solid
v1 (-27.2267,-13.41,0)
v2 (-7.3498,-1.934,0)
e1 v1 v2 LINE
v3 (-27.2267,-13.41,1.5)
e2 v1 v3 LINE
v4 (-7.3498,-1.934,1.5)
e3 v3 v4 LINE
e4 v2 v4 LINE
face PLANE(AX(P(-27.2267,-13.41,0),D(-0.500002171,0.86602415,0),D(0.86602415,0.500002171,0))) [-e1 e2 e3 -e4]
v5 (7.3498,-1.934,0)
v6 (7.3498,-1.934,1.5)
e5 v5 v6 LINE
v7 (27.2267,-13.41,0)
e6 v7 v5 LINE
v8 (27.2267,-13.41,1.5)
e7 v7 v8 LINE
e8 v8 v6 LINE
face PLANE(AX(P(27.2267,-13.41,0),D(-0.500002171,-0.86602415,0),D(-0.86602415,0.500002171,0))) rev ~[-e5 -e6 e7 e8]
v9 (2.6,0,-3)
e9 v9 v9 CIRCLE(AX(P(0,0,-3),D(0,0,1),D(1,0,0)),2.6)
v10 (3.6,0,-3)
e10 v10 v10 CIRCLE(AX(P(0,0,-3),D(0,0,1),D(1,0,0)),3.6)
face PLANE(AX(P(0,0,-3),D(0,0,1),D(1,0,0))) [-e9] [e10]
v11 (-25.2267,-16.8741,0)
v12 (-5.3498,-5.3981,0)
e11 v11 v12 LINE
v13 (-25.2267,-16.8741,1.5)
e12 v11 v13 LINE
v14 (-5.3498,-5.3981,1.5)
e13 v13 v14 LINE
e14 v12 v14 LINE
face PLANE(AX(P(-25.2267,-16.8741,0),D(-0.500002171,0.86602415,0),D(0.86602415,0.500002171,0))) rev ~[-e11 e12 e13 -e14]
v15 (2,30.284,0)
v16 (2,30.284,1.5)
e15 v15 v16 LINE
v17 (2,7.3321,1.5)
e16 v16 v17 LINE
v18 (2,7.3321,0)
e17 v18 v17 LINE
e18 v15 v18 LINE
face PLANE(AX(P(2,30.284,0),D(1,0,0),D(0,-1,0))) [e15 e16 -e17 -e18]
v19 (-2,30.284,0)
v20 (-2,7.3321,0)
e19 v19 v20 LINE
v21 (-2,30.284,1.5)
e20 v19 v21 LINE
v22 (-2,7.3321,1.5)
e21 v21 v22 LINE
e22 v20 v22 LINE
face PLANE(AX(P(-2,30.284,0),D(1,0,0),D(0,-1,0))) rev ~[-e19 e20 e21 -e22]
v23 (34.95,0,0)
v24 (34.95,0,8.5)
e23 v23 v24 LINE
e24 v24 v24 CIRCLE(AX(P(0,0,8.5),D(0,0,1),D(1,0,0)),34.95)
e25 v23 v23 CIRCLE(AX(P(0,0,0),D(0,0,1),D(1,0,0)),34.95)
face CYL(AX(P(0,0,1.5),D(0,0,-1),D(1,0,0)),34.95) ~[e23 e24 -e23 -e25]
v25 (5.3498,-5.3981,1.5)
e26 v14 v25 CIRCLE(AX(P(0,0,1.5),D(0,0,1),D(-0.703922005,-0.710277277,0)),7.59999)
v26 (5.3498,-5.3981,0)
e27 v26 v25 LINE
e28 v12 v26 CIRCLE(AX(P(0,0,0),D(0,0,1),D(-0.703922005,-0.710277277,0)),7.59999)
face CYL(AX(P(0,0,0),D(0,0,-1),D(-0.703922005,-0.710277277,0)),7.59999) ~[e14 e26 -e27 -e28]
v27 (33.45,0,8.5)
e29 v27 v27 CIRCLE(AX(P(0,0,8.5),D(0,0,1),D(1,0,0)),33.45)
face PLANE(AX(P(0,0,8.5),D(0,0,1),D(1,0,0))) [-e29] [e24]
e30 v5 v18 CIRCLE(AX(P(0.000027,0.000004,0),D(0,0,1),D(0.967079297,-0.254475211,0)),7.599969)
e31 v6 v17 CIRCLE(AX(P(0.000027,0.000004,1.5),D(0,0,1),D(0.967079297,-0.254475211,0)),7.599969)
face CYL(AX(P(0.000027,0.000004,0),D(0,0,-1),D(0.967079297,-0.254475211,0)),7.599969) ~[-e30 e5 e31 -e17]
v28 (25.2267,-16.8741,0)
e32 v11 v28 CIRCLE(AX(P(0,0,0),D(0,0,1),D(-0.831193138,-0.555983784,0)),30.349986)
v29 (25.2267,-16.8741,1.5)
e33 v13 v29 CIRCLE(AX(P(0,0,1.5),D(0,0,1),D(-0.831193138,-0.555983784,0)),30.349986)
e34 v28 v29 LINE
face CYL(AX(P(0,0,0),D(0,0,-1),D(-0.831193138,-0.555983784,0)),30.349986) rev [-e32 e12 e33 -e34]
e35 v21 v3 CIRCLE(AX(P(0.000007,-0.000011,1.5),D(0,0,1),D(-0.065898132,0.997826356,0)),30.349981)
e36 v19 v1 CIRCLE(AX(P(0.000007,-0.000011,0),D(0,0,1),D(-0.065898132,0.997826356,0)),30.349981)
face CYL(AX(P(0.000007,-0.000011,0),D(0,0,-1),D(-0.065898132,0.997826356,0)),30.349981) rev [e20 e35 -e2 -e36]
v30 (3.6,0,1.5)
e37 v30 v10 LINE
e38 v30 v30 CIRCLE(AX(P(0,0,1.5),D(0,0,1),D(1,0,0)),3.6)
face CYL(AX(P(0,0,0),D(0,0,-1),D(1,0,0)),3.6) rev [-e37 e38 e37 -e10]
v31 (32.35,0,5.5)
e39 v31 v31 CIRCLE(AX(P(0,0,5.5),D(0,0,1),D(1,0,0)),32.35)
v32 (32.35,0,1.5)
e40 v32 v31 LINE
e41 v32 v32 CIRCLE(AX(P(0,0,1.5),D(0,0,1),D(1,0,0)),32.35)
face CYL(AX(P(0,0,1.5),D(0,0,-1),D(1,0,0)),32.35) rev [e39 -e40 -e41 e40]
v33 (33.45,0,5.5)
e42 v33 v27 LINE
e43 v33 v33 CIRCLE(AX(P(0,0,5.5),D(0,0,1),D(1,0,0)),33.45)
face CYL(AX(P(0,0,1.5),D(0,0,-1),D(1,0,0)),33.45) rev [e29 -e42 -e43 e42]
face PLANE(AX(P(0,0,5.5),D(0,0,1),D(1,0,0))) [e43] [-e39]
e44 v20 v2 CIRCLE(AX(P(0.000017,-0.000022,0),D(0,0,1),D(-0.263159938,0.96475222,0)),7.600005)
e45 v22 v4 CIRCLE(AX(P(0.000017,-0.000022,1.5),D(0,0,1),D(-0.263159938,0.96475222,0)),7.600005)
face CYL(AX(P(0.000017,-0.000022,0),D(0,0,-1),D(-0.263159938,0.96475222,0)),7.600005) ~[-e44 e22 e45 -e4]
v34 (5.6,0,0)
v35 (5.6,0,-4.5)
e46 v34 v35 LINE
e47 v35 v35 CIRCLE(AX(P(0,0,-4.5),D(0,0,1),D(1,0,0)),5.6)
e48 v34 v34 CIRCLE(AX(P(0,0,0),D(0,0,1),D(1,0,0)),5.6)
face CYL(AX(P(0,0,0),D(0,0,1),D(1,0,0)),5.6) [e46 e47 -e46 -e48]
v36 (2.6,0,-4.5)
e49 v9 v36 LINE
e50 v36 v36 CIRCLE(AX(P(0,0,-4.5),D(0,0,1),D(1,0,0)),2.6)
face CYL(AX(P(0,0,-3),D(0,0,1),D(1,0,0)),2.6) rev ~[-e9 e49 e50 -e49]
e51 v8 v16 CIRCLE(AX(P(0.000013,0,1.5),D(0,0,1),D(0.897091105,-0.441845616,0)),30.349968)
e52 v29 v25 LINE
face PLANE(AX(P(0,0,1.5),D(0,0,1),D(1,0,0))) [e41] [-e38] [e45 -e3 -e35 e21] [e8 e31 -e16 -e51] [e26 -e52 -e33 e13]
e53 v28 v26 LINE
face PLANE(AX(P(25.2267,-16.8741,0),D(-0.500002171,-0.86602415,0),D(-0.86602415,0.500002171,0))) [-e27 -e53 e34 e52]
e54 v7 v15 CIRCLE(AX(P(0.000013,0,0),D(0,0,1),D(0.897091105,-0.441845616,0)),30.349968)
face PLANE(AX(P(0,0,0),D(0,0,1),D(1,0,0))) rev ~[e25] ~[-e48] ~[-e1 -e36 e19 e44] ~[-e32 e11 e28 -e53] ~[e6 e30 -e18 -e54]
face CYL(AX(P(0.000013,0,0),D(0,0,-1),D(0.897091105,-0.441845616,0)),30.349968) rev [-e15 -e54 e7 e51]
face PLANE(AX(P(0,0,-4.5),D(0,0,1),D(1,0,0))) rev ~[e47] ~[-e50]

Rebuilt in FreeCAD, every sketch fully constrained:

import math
import FreeCAD as App
import Part
import Sketcher
from FreeCAD import Vector
Q = App.Units.Quantity

doc = App.newDocument("Part")
params = doc.addObject("Spreadsheet::Sheet", "Params")
for row, (alias, value) in enumerate([
    ("sketch1_diameter", "7.2 mm"),
    ("sketch1_diameter2", "69.9 mm"),
    ("sketch1_radius", "7.6 mm"),
    ("sketch1_radius2", "30.35 mm"),
    ("pad1_length", "1.5 mm"),
    ("sketch2_diameter", "69.9 mm"),
    ("sketch2_diameter2", "66.9 mm"),
    ("pad2_length", "7 mm"),
    ("sketch3_diameter", "7.2 mm"),
    ("sketch3_diameter2", "11.2 mm"),
    ("pad3_length", "3 mm"),
    ("sketch4_diameter", "11.2 mm"),
    ("sketch4_diameter2", "5.2 mm"),
    ("pad4_length", "1.5 mm"),
    ("sketch5_diameter", "66.9 mm"),
    ("sketch5_diameter2", "64.7 mm"),
    ("pad5_length", "4 mm"),
], start=1):
    params.set(f"A{row}", alias)
    params.set(f"B{row}", "=" + value)
    params.setAlias(f"B{row}", alias)

body = doc.addObject("PartDesign::Body", "Body")

# Sketch on XY plane
sketch1 = doc.addObject("Sketcher::SketchObject", "Sketch")
body.addObject(sketch1)
sketch1.AttachmentSupport = (doc.XY_Plane, [""])
sketch1.MapMode = "FlatFace"
sketch1.addGeometry(Part.Circle(Vector(0, 0, 0), Vector(0, 0, 1), 34.95), False)
sketch1.addGeometry(Part.ArcOfCircle(Part.Circle(Vector(0, 0, 0), Vector(0, 0, 1), 30.34997), math.radians(-26.221686), math.radians(86.221589)), False)
sketch1.addGeometry(Part.LineSegment(Vector(27.2267, -13.41, 0), Vector(7.3498, -1.934, 0)), False)
sketch1.addGeometry(Part.ArcOfCircle(Part.Circle(Vector(0, 0, 0), Vector(0, 0, 1), 7.59998), math.radians(-14.742412), math.radians(74.742435)), False)
sketch1.addGeometry(Part.LineSegment(Vector(2, 7.3321, 0), Vector(2, 30.284, 0)), False)
sketch1.addGeometry(Part.LineSegment(Vector(5.3498, -5.3981, 0), Vector(25.2267, -16.8741, 0)), False)
sketch1.addGeometry(Part.ArcOfCircle(Part.Circle(Vector(0, 0, 0), Vector(0, 0, 1), 30.349986), math.radians(-146.221498), math.radians(-33.778502)), False)
sketch1.addGeometry(Part.LineSegment(Vector(-25.2267, -16.8741, 0), Vector(-5.3498, -5.3981, 0)), False)
sketch1.addGeometry(Part.ArcOfCircle(Part.Circle(Vector(0, 0, 0), Vector(0, 0, 1), 7.59999), math.radians(-134.74252), math.radians(-45.25748)), False)
sketch1.addGeometry(Part.ArcOfCircle(Part.Circle(Vector(0, 0, 0), Vector(0, 0, 1), 30.34998), math.radians(93.778411), math.radians(206.221686)), False)
sketch1.addGeometry(Part.LineSegment(Vector(-2, 30.284, 0), Vector(-2, 7.3321, 0)), False)
sketch1.addGeometry(Part.ArcOfCircle(Part.Circle(Vector(0, 0, 0), Vector(0, 0, 1), 7.599994), math.radians(105.257565), math.radians(194.742412)), False)
sketch1.addGeometry(Part.LineSegment(Vector(-7.3498, -1.934, 0), Vector(-27.2267, -13.41, 0)), False)
sketch1.addGeometry(Part.Circle(Vector(0, 0, 0), Vector(0, 0, 1), 3.6), False)
sketch1.addConstraint(Sketcher.Constraint("Coincident", 1, 1, 2, 1))
sketch1.addConstraint(Sketcher.Constraint("Coincident", 2, 2, 3, 1))
sketch1.addConstraint(Sketcher.Constraint("Coincident", 3, 2, 4, 1))
sketch1.addConstraint(Sketcher.Constraint("Coincident", 4, 2, 1, 2))
sketch1.addConstraint(Sketcher.Constraint("Coincident", 5, 2, 6, 2))
sketch1.addConstraint(Sketcher.Constraint("Coincident", 6, 1, 7, 1))
sketch1.addConstraint(Sketcher.Constraint("Coincident", 7, 2, 8, 1))
sketch1.addConstraint(Sketcher.Constraint("Coincident", 8, 2, 5, 1))
sketch1.addConstraint(Sketcher.Constraint("Coincident", 9, 1, 10, 1))
sketch1.addConstraint(Sketcher.Constraint("Coincident", 10, 2, 11, 1))
sketch1.addConstraint(Sketcher.Constraint("Coincident", 11, 2, 12, 1))
sketch1.addConstraint(Sketcher.Constraint("Coincident", 12, 2, 9, 2))
sketch1.addConstraint(Sketcher.Constraint("Vertical", 4))
sketch1.addConstraint(Sketcher.Constraint("Vertical", 10))
sketch1.addConstraint(Sketcher.Constraint("Coincident", 0, 3, -1, 1))
sketch1.addConstraint(Sketcher.Constraint("Coincident", 1, 3, -1, 1))
sketch1.addConstraint(Sketcher.Constraint("Coincident", 3, 3, -1, 1))
sketch1.addConstraint(Sketcher.Constraint("Coincident", 6, 3, -1, 1))
sketch1.addConstraint(Sketcher.Constraint("Coincident", 8, 3, -1, 1))
sketch1.addConstraint(Sketcher.Constraint("Coincident", 9, 3, -1, 1))
sketch1.addConstraint(Sketcher.Constraint("Coincident", 11, 3, -1, 1))
sketch1.addConstraint(Sketcher.Constraint("Coincident", 13, 3, -1, 1))
sketch1.addConstraint(Sketcher.Constraint("Equal", 1, 6))
sketch1.addConstraint(Sketcher.Constraint("Equal", 3, 8))
sketch1.addConstraint(Sketcher.Constraint("Equal", 6, 9))
sketch1.addConstraint(Sketcher.Constraint("Equal", 8, 11))
sketch1.addConstraint(Sketcher.Constraint("Parallel", 2, 5))
sketch1.addConstraint(Sketcher.Constraint("Parallel", 7, 12))
sketch1.addConstraint(Sketcher.Constraint("Horizontal", 5, 2, 6, 1))
sketch1.addConstraint(Sketcher.Constraint("Horizontal", 7, 2, 8, 2))
sketch1.addConstraint(Sketcher.Constraint("Horizontal", 4, 2, 9, 1))
sketch1.addConstraint(Sketcher.Constraint("Horizontal", 2, 2, 11, 2))
sketch1.addConstraint(Sketcher.Constraint("Equal", 2, 5))
sketch1.addConstraint(Sketcher.Constraint("Diameter", 13, 7.2))
sketch1.addConstraint(Sketcher.Constraint("DistanceX", -1, 1, 3, 2, 2.0))
sketch1.addConstraint(Sketcher.Constraint("DistanceX", 5, 2, 1, 1, 2.0))
sketch1.addConstraint(Sketcher.Constraint("Diameter", 0, 69.9))
sketch1.addConstraint(Sketcher.Constraint("Radius", 3, 7.6))
sketch1.addConstraint(Sketcher.Constraint("Angle", 2, Q("149.9999 deg")))
sketch1.addConstraint(Sketcher.Constraint("Radius", 1, 30.35))
sketch1.setExpression("Constraints[33]", "Params.sketch1_diameter")
sketch1.setExpression("Constraints[36]", "Params.sketch1_diameter2")
sketch1.setExpression("Constraints[37]", "Params.sketch1_radius")
sketch1.setExpression("Constraints[39]", "Params.sketch1_radius2")
pad1 = doc.addObject("PartDesign::Pad", "Pad")
body.addObject(pad1)
pad1.Profile = sketch1
pad1.setExpression("Length", "Params.pad1_length")

# Sketch on XY plane
sketch2 = doc.addObject("Sketcher::SketchObject", "Sketch001")
body.addObject(sketch2)
sketch2.AttachmentSupport = (doc.XY_Plane, [""])
sketch2.MapMode = "FlatFace"
sketch2.AttachmentOffset = App.Placement(Vector(0, 0, 1.5), App.Rotation())
sketch2.addGeometry(Part.Circle(Vector(0, 0, 0), Vector(0, 0, 1), 34.95), False)
sketch2.addGeometry(Part.Circle(Vector(0, 0, 0), Vector(0, 0, 1), 33.45), False)
sketch2.addConstraint(Sketcher.Constraint("Coincident", 0, 3, -1, 1))
sketch2.addConstraint(Sketcher.Constraint("Coincident", 1, 3, -1, 1))
sketch2.addConstraint(Sketcher.Constraint("Diameter", 0, 69.9))
sketch2.addConstraint(Sketcher.Constraint("Diameter", 1, 66.9))
sketch2.setExpression("Constraints[2]", "Params.sketch2_diameter")
sketch2.setExpression("Constraints[3]", "Params.sketch2_diameter2")
pad2 = doc.addObject("PartDesign::Pad", "Pad001")
body.addObject(pad2)
pad2.Profile = sketch2
pad2.setExpression("Length", "Params.pad2_length")

# Sketch on XY plane
sketch3 = doc.addObject("Sketcher::SketchObject", "Sketch002")
body.addObject(sketch3)
sketch3.AttachmentSupport = (doc.XY_Plane, [""])
sketch3.MapMode = "FlatFace"
sketch3.addGeometry(Part.Circle(Vector(0, 0, 0), Vector(0, 0, 1), 5.6), False)
sketch3.addGeometry(Part.Circle(Vector(0, 0, 0), Vector(0, 0, 1), 3.6), False)
sketch3.addConstraint(Sketcher.Constraint("Coincident", 0, 3, -1, 1))
sketch3.addConstraint(Sketcher.Constraint("Coincident", 1, 3, -1, 1))
sketch3.addConstraint(Sketcher.Constraint("Diameter", 1, 7.2))
sketch3.addConstraint(Sketcher.Constraint("Diameter", 0, 11.2))
sketch3.setExpression("Constraints[2]", "Params.sketch3_diameter")
sketch3.setExpression("Constraints[3]", "Params.sketch3_diameter2")
pad3 = doc.addObject("PartDesign::Pad", "Pad002")
body.addObject(pad3)
pad3.Profile = sketch3
pad3.setExpression("Length", "Params.pad3_length")
pad3.Reversed = True

# Sketch on XY plane
sketch4 = doc.addObject("Sketcher::SketchObject", "Sketch003")
body.addObject(sketch4)
sketch4.AttachmentSupport = (doc.XY_Plane, [""])
sketch4.MapMode = "FlatFace"
sketch4.AttachmentOffset = App.Placement(Vector(0, 0, -3), App.Rotation())
sketch4.addGeometry(Part.Circle(Vector(0, 0, 0), Vector(0, 0, 1), 5.6), False)
sketch4.addGeometry(Part.Circle(Vector(0, 0, 0), Vector(0, 0, 1), 2.6), False)
sketch4.addConstraint(Sketcher.Constraint("Coincident", 0, 3, -1, 1))
sketch4.addConstraint(Sketcher.Constraint("Coincident", 1, 3, -1, 1))
sketch4.addConstraint(Sketcher.Constraint("Diameter", 0, 11.2))
sketch4.addConstraint(Sketcher.Constraint("Diameter", 1, 5.2))
sketch4.setExpression("Constraints[2]", "Params.sketch4_diameter")
sketch4.setExpression("Constraints[3]", "Params.sketch4_diameter2")
pad4 = doc.addObject("PartDesign::Pad", "Pad003")
body.addObject(pad4)
pad4.Profile = sketch4
pad4.setExpression("Length", "Params.pad4_length")
pad4.Reversed = True

# Sketch on XY plane
sketch5 = doc.addObject("Sketcher::SketchObject", "Sketch004")
body.addObject(sketch5)
sketch5.AttachmentSupport = (doc.XY_Plane, [""])
sketch5.MapMode = "FlatFace"
sketch5.AttachmentOffset = App.Placement(Vector(0, 0, 1.5), App.Rotation())
sketch5.addGeometry(Part.Circle(Vector(0, 0, 0), Vector(0, 0, 1), 33.45), False)
sketch5.addGeometry(Part.Circle(Vector(0, 0, 0), Vector(0, 0, 1), 32.35), False)
sketch5.addConstraint(Sketcher.Constraint("Coincident", 0, 3, -1, 1))
sketch5.addConstraint(Sketcher.Constraint("Coincident", 1, 3, -1, 1))
sketch5.addConstraint(Sketcher.Constraint("Diameter", 0, 66.9))
sketch5.addConstraint(Sketcher.Constraint("Diameter", 1, 64.7))
sketch5.setExpression("Constraints[2]", "Params.sketch5_diameter")
sketch5.setExpression("Constraints[3]", "Params.sketch5_diameter2")
pad5 = doc.addObject("PartDesign::Pad", "Pad004")
body.addObject(pad5)
pad5.Profile = sketch5
pad5.setExpression("Length", "Params.pad5_length")

doc.recompute()
